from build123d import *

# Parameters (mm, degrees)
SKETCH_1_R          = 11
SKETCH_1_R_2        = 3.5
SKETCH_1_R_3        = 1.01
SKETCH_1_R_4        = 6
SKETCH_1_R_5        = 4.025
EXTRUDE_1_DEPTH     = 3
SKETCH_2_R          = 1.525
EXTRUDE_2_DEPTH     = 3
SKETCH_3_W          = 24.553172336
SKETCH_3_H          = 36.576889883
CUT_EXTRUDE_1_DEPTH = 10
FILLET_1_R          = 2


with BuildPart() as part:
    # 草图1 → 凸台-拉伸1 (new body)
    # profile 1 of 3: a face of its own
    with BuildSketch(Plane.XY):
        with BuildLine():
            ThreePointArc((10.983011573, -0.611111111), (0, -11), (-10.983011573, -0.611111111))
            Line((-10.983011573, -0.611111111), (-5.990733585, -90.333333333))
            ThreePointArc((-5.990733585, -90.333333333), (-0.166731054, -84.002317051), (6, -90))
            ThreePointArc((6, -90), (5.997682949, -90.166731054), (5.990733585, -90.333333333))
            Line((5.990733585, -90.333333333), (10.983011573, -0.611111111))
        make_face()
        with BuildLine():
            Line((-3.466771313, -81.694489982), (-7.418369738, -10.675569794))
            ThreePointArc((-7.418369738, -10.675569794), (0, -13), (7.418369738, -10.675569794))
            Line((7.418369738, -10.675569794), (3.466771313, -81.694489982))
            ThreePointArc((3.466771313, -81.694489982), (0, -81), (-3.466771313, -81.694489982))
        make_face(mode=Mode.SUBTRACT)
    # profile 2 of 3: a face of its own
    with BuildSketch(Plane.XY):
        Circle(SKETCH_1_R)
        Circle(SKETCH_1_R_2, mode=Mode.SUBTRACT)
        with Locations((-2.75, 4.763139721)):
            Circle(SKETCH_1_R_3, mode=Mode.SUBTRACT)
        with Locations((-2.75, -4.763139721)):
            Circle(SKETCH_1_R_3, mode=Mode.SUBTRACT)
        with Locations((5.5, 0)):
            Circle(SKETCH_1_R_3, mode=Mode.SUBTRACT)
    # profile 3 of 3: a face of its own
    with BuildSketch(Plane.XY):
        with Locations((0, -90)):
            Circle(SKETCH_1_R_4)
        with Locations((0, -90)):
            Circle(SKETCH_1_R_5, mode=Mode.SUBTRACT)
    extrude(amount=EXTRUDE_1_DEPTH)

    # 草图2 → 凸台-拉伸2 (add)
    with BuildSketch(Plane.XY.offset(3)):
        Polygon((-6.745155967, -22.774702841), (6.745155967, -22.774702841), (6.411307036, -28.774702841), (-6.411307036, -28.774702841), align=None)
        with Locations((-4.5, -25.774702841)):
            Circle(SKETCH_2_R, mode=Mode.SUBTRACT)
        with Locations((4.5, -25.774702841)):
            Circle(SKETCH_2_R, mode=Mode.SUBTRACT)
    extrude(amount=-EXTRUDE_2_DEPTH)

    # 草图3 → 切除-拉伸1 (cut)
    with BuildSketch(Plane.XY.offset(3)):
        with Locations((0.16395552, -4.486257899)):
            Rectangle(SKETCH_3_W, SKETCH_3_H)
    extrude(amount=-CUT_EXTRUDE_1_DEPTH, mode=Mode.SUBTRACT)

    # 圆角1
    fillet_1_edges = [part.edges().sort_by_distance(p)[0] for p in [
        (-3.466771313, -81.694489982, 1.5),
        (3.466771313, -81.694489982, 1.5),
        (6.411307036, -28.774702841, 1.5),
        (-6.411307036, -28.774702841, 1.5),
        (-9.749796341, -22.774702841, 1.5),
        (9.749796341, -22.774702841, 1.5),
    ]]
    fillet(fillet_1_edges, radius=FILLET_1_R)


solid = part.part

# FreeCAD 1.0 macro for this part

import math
import FreeCAD as App
import Part
import Sketcher
from FreeCAD import Vector


def edges_at(feature, points):
    """Names of the edges that pass closest to the given points."""
    edges = feature.Shape.Edges
    near = lambda p: min(range(len(edges)), key=lambda i: edges[i].distToShape(Part.Vertex(*p))[0])
    return sorted({f"Edge{near(p) + 1}" for p in points})


def add_polygon(sketch, points):
    """Adds a closed chain of lines whose ends are joined by coincident constraints."""
    first, n = sketch.GeometryCount, len(points)
    for a, b in zip(points, points[1:] + points[:1]):
        sketch.addGeometry(Part.LineSegment(App.Vector(*a, 0), App.Vector(*b, 0)), False)
    for i in range(n):
        sketch.addConstraint(Sketcher.Constraint("Coincident", first + i, 2, first + (i + 1) % n, 1))

doc = App.newDocument("Part")
body = doc.addObject("PartDesign::Body", "Body")

sketch1 = body.newObject("Sketcher::SketchObject", "Sketch")
sketch1.AttachmentSupport = (doc.getObject("XY_Plane"), [""])
sketch1.MapMode = "FlatFace"
sketch1.addGeometry(Part.LineSegment(Vector(6, -90.3, 0), Vector(11, -0.6, 0)), False)
sketch1.addGeometry(Part.ArcOfCircle(Part.Circle(Vector(0, 0, 0), Vector(0, 0, 1), 11), math.radians(-3), math.radians(183)), False)
sketch1.addGeometry(Part.LineSegment(Vector(-11, -0.6, 0), Vector(-6, -90.3, 0)), False)
sketch1.addGeometry(Part.ArcOfCircle(Part.Circle(Vector(0, -90, 0), Vector(0, 0, 1), 6), math.radians(-177), math.radians(-3)), False)
sketch1.addGeometry(Part.ArcOfCircle(Part.Circle(Vector(0, -90, 0), Vector(0, 0, 1), 9), math.radians(67), math.radians(113)), False)
sketch1.addGeometry(Part.LineSegment(Vector(-3.5, -81.7, 0), Vector(-7.4, -10.7, 0)), False)
sketch1.addGeometry(Part.ArcOfCircle(Part.Circle(Vector(0, 0, 0), Vector(0, 0, 1), 13), math.radians(-125), math.radians(-55)), False)
sketch1.addGeometry(Part.LineSegment(Vector(7.4, -10.7, 0), Vector(3.5, -81.7, 0)), False)
sketch1.addGeometry(Part.Circle(Vector(-2.8, 4.8, 0), Vector(0, 0, 1), 1), False)
sketch1.addGeometry(Part.Circle(Vector(-2.8, -4.8, 0), Vector(0, 0, 1), 1), False)
sketch1.addGeometry(Part.Circle(Vector(0, 0, 0), Vector(0, 0, 1), 3.5), False)
sketch1.addGeometry(Part.Circle(Vector(5.5, 0, 0), Vector(0, 0, 1), 1), False)
sketch1.addGeometry(Part.Circle(Vector(0, -90, 0), Vector(0, 0, 1), 4), False)
sketch1.addConstraint(Sketcher.Constraint("Tangent", 0, 2, 1, 1))
sketch1.addConstraint(Sketcher.Constraint("Tangent", 1, 2, 2, 1))
sketch1.addConstraint(Sketcher.Constraint("Tangent", 2, 2, 3, 1))
sketch1.addConstraint(Sketcher.Constraint("Tangent", 3, 2, 0, 1))
sketch1.addConstraint(Sketcher.Constraint("Coincident", 4, 2, 5, 1))
sketch1.addConstraint(Sketcher.Constraint("Coincident", 5, 2, 6, 1))
sketch1.addConstraint(Sketcher.Constraint("Coincident", 6, 2, 7, 1))
sketch1.addConstraint(Sketcher.Constraint("Coincident", 7, 2, 4, 1))
sketch1.addConstraint(Sketcher.Constraint("Coincident", 1, 3, -1, 1))
sketch1.addConstraint(Sketcher.Constraint("Coincident", 6, 3, -1, 1))
sketch1.addConstraint(Sketcher.Constraint("Coincident", 10, 3, -1, 1))
sketch1.addConstraint(Sketcher.Constraint("Coincident", 4, 3, 3, 3))
sketch1.addConstraint(Sketcher.Constraint("Coincident", 12, 3, 3, 3))
sketch1.addConstraint(Sketcher.Constraint("Equal", 8, 9))
sketch1.addConstraint(Sketcher.Constraint("Equal", 9, 11))
sketch1.addConstraint(Sketcher.Constraint("Symmetric", 4, 2, 7, 2, -2))
sketch1.addConstraint(Sketcher.Constraint("Symmetric", 8, 3, 9, 3, -1))
sketch1.addConstraint(Sketcher.Constraint("PointOnObject", 11, 3, -1))
sketch1.addConstraint(Sketcher.Constraint("Parallel", 2, 5))
sketch1.addConstraint(Sketcher.Constraint("Parallel", 0, 7))
sketch1.addConstraint(Sketcher.Constraint("Diameter", 10, 7.0))
sketch1.addConstraint(Sketcher.Constraint("Radius", 1, 11.0))
sketch1.addConstraint(Sketcher.Constraint("Radius", 3, 6.0))
sketch1.addConstraint(Sketcher.Constraint("Radius", 4, 9.0))
sketch1.addConstraint(Sketcher.Constraint("Radius", 6, 13.0))
sketch1.addConstraint(Sketcher.Constraint("Diameter", 8, 2.02))
sketch1.addConstraint(Sketcher.Constraint("Diameter", 12, 8.05))
sketch1.addConstraint(Sketcher.Constraint("DistanceY", 3, 3, -1, 1, 90.0))
sketch1.addConstraint(Sketcher.Constraint("DistanceX", -1, 1, 11, 3, 5.5))
sketch1.addConstraint(Sketcher.Constraint("DistanceX", 8, 3, -1, 1, 2.75))
sketch1.addConstraint(Sketcher.Constraint("Distance", 5, 71.128772))
sketch1.addConstraint(Sketcher.Constraint("DistanceY", -1, 1, 8, 3, 4.76314))
pad1 = body.newObject("PartDesign::Pad", "Pad")
pad1.Profile = sketch1
pad1.Length = 3

sketch2 = body.newObject("Sketcher::SketchObject", "Sketch001")
sketch2.AttachmentSupport = (doc.getObject("XY_Plane"), [""])
sketch2.MapMode = "FlatFace"
sketch2.AttachmentOffset = App.Placement(Vector(0, 0, 3), App.Rotation())
add_polygon(sketch2, [(6.7, -22.8), (-6.7, -22.8), (-6.4, -28.8), (6.4, -28.8)])
sketch2.addGeometry(Part.Circle(Vector(4.5, -25.8, 0), Vector(0, 0, 1), 1.5), False)
sketch2.addGeometry(Part.Circle(Vector(-4.5, -25.8, 0), Vector(0, 0, 1), 1.5), False)
sketch2.addConstraint(Sketcher.Constraint("Horizontal", 0))
sketch2.addConstraint(Sketcher.Constraint("Horizontal", 2))
sketch2.addConstraint(Sketcher.Constraint("Equal", 4, 5))
sketch2.addConstraint(Sketcher.Constraint("Symmetric", 4, 3, 5, 3, -2))
sketch2.addConstraint(Sketcher.Constraint("Equal", 1, 3))
sketch2.addConstraint(Sketcher.Constraint("Diameter", 4, 3.05))
sketch2.addConstraint(Sketcher.Constraint("DistanceX", 5, 3, 4, 3, 9.0))
sketch2.addConstraint(Sketcher.Constraint("DistanceY", 5, 3, 0, 2, 3.0))
sketch2.addConstraint(Sketcher.Constraint("DistanceY", 1, 2, 5, 3, 3.0))
sketch2.addConstraint(Sketcher.Constraint("DistanceX", 0, 2, 0, 1, 13.490312))
sketch2.addConstraint(Sketcher.Constraint("Distance", 1, 6.009281))
sketch2.addConstraint(Sketcher.Constraint("DistanceY", 4, 3, -1, 1, 25.774703))
sketch2.addConstraint(Sketcher.Constraint("DistanceX", 0, 2, -1, 1, 6.745156))
pad2 = body.newObject("PartDesign::Pad", "Pad001")
pad2.Profile = sketch2
pad2.Length = 3
pad2.Reversed = True

sketch3 = body.newObject("Sketcher::SketchObject", "Sketch002")
sketch3.AttachmentSupport = (doc.getObject("XY_Plane"), [""])
sketch3.MapMode = "FlatFace"
sketch3.AttachmentOffset = App.Placement(Vector(0, 0, 3), App.Rotation())
add_polygon(sketch3, [(-12, 14), (-12, -23), (12, -23), (12, 14)])
sketch3.addConstraint(Sketcher.Constraint("Vertical", 0))
sketch3.addConstraint(Sketcher.Constraint("Horizontal", 1))
sketch3.addConstraint(Sketcher.Constraint("Vertical", 2))
sketch3.addConstraint(Sketcher.Constraint("Horizontal", 3))
sketch3.addConstraint(Sketcher.Constraint("DistanceY", 0, 2, 0, 1, 36.57689))
sketch3.addConstraint(Sketcher.Constraint("DistanceX", 1, 1, 1, 2, 24.553172))
sketch3.addConstraint(Sketcher.Constraint("DistanceX", 0, 2, -1, 1, 12.112631))
sketch3.addConstraint(Sketcher.Constraint("DistanceY", 0, 2, -1, 1, 22.774703))
pocket1 = body.newObject("PartDesign::Pocket", "Pocket")
pocket1.Profile = sketch3
pocket1.Length = 10
doc.recompute()

fillet = body.newObject("PartDesign::Fillet", "Fillet")
fillet.Base = (pocket1, edges_at(pocket1, [
    (-3.467, -81.694, 1.5),
    (3.467, -81.694, 1.5),
    (6.411, -28.775, 1.5),
    (-6.411, -28.775, 1.5),
    (-9.75, -22.775, 1.5),
    (9.75, -22.775, 1.5),
]))
fillet.Radius = 2

doc.recompute()
